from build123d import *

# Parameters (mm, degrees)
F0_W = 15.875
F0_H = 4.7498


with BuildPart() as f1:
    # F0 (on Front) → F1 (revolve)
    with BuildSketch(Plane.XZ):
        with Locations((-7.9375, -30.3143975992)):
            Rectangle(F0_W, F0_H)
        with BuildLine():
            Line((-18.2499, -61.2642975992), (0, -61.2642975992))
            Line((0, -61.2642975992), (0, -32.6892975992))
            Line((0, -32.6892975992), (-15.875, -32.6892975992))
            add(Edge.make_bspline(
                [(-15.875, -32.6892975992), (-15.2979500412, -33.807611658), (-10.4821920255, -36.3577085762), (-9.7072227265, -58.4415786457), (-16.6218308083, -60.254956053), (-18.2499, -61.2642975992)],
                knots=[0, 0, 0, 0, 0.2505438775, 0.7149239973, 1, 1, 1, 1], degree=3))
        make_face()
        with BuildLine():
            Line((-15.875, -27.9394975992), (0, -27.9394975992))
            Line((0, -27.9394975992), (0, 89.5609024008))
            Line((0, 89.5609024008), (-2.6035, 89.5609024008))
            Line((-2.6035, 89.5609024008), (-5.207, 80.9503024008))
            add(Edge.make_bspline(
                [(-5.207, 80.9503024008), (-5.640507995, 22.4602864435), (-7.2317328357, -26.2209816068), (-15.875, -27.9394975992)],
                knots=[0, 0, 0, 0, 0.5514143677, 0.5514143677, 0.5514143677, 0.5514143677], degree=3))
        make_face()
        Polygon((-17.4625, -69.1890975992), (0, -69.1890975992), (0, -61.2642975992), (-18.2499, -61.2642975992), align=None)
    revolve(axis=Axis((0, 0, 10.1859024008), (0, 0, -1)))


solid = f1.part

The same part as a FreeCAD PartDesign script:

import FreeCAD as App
import Part
import Sketcher

V = App.Vector
Q = App.Units.Quantity

doc = App.newDocument("Part")
body = doc.addObject("PartDesign::Body", "Body")

sketch1 = body.newObject("Sketcher::SketchObject", "Sketch")
sketch1.AttachmentSupport = (doc.getObject("XZ_Plane"), [""])
sketch1.MapMode = "FlatFace"
sketch1.addGeometry(Part.LineSegment(V(-15.875, -27.939498, 0), V(-15.875, -32.689298, 0)), False)
sketch1.addGeometry(Part.BSplineCurve([V(-15.875, -32.689298, 0), V(-15.29795, -33.807612, 0), V(-10.482192, -36.357709, 0), V(-9.707223, -58.441579, 0), V(-16.621831, -60.254956, 0), V(-18.2499, -61.264298, 0)], [4, 1, 1, 4], [0, 0.250543878, 0.714923997, 1], False, 3, [1, 1, 1, 1, 1, 1], False), False)
sketch1.addGeometry(Part.LineSegment(V(-18.2499, -61.264298, 0), V(-17.4625, -69.189098, 0)), False)
sketch1.addGeometry(Part.LineSegment(V(-17.4625, -69.189098, 0), V(0, -69.189098, 0)), False)
sketch1.addGeometry(Part.LineSegment(V(0, -69.189098, 0), V(0, 89.560902, 0)), False)
sketch1.addGeometry(Part.LineSegment(V(0, 89.560902, 0), V(-2.6035, 89.560902, 0)), False)
sketch1.addGeometry(Part.LineSegment(V(-2.6035, 89.560902, 0), V(-5.207, 80.950302, 0)), False)
sketch1.addGeometry(Part.BSplineCurve([V(-5.207, 80.950302, 0), V(-5.640508, 22.460286, 0), V(-7.231733, -26.220982, 0), V(-15.875, -27.939498, 0)], [4, 4], [0, 0.551414368], False, 3, [1, 1, 1, 1], False), False)
sketch1.addConstraint(Sketcher.Constraint("Block", 1))
sketch1.addConstraint(Sketcher.Constraint("Block", 7))
sketch1.addConstraint(Sketcher.Constraint("Coincident", 0, 2, 1, 1))
sketch1.addConstraint(Sketcher.Constraint("Coincident", 1, 2, 2, 1))
sketch1.addConstraint(Sketcher.Constraint("Coincident", 2, 2, 3, 1))
sketch1.addConstraint(Sketcher.Constraint("Coincident", 3, 2, 4, 1))
sketch1.addConstraint(Sketcher.Constraint("Coincident", 4, 2, 5, 1))
sketch1.addConstraint(Sketcher.Constraint("Coincident", 5, 2, 6, 1))
sketch1.addConstraint(Sketcher.Constraint("Coincident", 6, 2, 7, 1))
sketch1.addConstraint(Sketcher.Constraint("Coincident", 7, 2, 0, 1))
sketch1.addConstraint(Sketcher.Constraint("Horizontal", 3))
sketch1.addConstraint(Sketcher.Constraint("Vertical", 4))
sketch1.addConstraint(Sketcher.Constraint("Horizontal", 5))
sketch1.addConstraint(Sketcher.Constraint("PointOnObject", 3, 2, -2))
sketch1.addConstraint(Sketcher.Constraint("DistanceY", 4, 1, 4, 2, Q("6.25 in")))
sketch1.addConstraint(Sketcher.Constraint("DistanceX", 3, 1, 3, 2, Q("0.6875 in")))
sketch1.addConstraint(Sketcher.Constraint("DistanceX", 5, 2, 5, 1, Q("0.1025 in")))
sketch1.addConstraint(Sketcher.Constraint("DistanceY", 2, 2, 0, 2, Q("1.437 in")))
revolution = body.newObject("PartDesign::Revolution", "Revolution")
revolution.Profile = sketch1
revolution.ReferenceAxis = (sketch1, ["V_Axis"])
revolution.Angle = 360

doc.recompute()
